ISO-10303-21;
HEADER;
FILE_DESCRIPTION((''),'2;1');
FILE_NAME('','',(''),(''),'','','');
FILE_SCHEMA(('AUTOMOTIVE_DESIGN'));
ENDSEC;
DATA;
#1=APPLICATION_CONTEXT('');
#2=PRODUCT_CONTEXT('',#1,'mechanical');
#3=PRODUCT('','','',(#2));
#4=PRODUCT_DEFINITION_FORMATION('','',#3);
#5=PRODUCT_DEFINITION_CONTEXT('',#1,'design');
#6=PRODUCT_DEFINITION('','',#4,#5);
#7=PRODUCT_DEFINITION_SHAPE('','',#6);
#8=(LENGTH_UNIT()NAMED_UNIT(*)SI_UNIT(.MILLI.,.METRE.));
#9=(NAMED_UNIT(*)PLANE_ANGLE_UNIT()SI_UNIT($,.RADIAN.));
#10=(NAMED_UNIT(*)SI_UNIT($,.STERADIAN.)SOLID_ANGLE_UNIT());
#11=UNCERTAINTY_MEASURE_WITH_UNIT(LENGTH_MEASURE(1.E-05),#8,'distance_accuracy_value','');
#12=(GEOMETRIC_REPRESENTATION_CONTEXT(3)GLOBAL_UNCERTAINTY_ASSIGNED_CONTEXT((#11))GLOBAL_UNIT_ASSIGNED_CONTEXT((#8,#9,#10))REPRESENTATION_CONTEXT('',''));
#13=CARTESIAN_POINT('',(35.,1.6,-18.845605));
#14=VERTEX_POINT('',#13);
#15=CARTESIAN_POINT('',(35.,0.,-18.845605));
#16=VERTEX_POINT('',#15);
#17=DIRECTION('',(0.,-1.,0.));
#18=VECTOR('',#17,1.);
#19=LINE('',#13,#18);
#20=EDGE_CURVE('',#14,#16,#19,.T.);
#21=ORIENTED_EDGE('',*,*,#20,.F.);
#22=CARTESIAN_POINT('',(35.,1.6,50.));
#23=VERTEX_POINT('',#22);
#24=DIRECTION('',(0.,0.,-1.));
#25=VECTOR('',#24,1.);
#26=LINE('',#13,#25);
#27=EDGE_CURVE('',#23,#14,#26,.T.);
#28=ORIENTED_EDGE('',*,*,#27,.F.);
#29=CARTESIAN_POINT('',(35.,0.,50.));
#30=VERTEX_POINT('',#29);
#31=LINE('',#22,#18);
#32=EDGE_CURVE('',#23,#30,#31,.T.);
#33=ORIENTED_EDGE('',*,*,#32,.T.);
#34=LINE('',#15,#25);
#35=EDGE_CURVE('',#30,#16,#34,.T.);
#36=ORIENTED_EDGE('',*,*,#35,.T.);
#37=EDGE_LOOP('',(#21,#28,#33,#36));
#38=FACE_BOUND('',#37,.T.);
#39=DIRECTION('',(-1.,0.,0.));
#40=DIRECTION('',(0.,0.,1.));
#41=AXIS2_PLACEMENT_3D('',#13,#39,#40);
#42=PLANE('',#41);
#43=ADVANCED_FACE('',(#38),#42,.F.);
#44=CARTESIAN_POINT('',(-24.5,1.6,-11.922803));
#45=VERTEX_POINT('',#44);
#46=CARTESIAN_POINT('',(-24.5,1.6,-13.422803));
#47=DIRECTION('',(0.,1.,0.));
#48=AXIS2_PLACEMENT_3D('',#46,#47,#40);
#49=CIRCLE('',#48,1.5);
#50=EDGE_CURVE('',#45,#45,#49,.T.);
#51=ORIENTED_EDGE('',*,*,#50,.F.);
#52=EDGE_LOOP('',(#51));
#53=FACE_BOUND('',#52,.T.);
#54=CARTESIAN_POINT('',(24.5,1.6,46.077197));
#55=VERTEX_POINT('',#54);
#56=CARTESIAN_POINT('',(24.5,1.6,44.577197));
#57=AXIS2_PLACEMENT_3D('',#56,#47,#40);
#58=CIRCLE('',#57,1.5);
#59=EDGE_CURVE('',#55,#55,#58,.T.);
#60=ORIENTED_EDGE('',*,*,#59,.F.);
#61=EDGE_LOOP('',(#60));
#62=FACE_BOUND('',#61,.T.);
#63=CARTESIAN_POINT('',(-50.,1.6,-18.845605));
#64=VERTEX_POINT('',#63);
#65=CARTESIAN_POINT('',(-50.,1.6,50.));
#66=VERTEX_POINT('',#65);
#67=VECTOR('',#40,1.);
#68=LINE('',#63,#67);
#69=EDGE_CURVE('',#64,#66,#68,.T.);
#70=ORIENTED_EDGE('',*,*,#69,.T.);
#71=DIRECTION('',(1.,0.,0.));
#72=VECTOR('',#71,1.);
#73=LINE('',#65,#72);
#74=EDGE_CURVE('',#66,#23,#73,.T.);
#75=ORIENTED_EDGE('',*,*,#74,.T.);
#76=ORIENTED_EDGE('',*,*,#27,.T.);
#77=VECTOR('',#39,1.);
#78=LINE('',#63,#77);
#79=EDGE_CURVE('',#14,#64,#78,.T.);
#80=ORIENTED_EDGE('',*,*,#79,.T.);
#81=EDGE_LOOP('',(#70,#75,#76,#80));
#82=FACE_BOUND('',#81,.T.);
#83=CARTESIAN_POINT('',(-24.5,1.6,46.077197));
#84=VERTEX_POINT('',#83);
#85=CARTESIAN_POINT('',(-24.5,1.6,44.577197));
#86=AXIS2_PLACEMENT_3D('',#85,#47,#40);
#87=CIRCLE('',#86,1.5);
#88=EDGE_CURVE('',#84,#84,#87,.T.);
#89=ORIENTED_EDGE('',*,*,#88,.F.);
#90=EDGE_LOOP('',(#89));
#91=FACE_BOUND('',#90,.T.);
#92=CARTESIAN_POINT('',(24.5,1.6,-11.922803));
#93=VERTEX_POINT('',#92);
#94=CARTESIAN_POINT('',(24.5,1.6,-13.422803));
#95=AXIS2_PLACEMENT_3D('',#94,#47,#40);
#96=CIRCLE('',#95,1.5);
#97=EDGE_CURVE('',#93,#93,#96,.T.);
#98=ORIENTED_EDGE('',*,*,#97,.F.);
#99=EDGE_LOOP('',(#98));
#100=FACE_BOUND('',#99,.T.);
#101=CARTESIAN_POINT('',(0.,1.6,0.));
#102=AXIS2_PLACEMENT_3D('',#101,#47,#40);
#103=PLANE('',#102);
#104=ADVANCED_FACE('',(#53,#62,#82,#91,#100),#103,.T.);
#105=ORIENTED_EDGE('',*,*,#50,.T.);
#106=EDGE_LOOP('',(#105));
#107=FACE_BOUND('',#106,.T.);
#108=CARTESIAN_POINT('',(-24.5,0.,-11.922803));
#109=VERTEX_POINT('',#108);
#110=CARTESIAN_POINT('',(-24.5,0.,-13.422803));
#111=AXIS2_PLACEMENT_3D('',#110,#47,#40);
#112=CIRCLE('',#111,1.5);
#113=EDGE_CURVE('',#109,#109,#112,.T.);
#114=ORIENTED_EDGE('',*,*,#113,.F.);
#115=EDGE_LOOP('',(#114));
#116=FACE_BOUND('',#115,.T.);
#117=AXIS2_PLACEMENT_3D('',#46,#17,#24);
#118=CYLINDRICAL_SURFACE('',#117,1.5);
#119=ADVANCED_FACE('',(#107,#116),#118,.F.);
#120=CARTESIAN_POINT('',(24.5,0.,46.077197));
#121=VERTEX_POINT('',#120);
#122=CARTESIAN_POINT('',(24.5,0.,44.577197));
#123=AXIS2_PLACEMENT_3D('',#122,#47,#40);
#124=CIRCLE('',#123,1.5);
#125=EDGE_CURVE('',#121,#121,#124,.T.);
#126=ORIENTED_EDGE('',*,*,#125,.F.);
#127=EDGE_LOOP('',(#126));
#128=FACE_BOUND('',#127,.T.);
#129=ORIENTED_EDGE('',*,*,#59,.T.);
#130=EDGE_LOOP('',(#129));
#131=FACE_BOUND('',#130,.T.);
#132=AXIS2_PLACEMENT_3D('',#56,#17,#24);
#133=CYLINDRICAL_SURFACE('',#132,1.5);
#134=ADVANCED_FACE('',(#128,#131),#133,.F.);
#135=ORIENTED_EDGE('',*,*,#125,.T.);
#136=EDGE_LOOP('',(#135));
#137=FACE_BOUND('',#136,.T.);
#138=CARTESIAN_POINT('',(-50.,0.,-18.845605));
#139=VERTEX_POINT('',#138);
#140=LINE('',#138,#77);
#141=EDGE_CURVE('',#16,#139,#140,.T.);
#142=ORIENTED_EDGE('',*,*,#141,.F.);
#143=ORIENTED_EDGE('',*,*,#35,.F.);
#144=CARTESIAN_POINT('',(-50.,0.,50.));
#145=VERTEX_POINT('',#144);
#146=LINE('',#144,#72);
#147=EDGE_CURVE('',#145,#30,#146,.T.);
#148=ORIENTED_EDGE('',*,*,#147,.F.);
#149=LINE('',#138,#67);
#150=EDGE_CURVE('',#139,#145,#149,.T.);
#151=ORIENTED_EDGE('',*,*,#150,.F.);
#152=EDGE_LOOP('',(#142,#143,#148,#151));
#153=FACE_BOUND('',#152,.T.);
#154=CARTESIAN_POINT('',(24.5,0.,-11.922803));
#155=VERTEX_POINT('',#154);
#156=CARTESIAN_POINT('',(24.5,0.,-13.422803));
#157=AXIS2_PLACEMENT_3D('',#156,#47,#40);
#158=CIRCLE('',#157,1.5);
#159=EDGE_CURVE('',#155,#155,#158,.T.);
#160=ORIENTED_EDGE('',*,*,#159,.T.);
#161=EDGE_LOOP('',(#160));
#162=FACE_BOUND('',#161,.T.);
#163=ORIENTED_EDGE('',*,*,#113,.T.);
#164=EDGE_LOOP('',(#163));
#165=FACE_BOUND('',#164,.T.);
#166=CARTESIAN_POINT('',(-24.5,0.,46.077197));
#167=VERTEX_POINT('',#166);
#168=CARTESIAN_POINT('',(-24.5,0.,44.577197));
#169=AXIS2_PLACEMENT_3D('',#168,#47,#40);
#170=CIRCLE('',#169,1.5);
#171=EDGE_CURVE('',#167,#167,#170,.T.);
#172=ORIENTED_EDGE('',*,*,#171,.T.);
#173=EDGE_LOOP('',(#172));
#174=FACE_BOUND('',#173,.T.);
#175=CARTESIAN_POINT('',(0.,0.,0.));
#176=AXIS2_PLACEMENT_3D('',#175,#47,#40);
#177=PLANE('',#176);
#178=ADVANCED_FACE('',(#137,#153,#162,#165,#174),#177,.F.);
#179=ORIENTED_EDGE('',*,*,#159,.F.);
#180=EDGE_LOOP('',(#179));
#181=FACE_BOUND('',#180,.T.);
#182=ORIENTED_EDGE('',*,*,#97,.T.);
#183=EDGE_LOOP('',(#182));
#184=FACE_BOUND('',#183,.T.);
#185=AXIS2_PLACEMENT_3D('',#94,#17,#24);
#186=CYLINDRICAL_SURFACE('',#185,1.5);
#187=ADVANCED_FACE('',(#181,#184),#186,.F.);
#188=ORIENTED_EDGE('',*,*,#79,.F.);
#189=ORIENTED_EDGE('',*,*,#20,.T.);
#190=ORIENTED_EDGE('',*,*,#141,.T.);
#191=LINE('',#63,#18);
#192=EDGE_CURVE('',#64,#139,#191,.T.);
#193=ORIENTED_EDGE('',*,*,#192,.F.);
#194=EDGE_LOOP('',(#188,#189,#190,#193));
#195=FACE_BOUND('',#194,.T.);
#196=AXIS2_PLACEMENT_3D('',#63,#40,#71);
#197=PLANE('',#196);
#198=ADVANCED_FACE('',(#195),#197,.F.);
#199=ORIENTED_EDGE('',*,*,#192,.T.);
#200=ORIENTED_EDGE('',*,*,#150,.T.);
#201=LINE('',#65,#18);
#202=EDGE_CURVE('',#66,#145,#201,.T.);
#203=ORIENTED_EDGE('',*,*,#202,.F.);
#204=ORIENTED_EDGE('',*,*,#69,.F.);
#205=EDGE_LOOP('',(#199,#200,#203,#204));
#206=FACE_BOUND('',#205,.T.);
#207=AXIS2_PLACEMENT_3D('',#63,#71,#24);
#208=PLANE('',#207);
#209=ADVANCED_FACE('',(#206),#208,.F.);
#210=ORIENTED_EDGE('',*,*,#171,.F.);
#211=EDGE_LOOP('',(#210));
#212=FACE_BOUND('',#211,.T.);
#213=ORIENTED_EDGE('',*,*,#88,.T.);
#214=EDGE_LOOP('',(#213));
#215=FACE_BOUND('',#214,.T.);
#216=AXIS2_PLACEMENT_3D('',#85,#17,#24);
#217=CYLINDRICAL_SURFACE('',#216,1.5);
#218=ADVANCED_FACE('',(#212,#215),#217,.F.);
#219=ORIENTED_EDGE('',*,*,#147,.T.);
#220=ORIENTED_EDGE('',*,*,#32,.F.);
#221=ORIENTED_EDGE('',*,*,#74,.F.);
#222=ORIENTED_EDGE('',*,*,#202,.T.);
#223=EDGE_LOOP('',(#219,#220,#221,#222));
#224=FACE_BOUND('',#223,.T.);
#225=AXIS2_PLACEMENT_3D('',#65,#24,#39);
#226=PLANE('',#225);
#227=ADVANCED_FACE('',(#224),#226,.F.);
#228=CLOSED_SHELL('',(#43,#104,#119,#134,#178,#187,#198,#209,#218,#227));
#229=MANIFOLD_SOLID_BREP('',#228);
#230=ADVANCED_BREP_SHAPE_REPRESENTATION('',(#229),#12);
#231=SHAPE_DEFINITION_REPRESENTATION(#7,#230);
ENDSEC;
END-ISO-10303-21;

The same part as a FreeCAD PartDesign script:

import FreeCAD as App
import Part
import Sketcher
from FreeCAD import Vector
Q = App.Units.Quantity

doc = App.newDocument("Part")
body = doc.addObject("PartDesign::Body", "Body")

# Sketch on XZ plane
sketch1 = body.newObject("Sketcher::SketchObject", "Sketch")
sketch1.AttachmentSupport = (doc.getObject("XZ_Plane"), [""])
sketch1.MapMode = "FlatFace"
sketch1.addGeometry([
    Part.LineSegment(Vector(-50, -18.8, 0), Vector(-50, 50, 0)),  # 0
    Part.LineSegment(Vector(-50, 50, 0), Vector(35, 50, 0)),  # 1
    Part.LineSegment(Vector(35, 50, 0), Vector(35, -18.8, 0)),  # 2
    Part.LineSegment(Vector(35, -18.8, 0), Vector(-50, -18.8, 0)),  # 3
    Part.Circle(Vector(-24.5, 44.6, 0), Vector(0, 0, 1), 1.5),  # 4
    Part.Circle(Vector(24.5, 44.6, 0), Vector(0, 0, 1), 1.5),  # 5
    Part.Circle(Vector(-24.5, -13.4, 0), Vector(0, 0, 1), 1.5),  # 6
    Part.Circle(Vector(24.5, -13.4, 0), Vector(0, 0, 1), 1.5),  # 7
], False)
sketch1.addConstraint([
    Sketcher.Constraint("Coincident", 0, 2, 1, 1),
    Sketcher.Constraint("Coincident", 1, 2, 2, 1),
    Sketcher.Constraint("Coincident", 2, 2, 3, 1),
    Sketcher.Constraint("Coincident", 3, 2, 0, 1),
    Sketcher.Constraint("Vertical", 0),
    Sketcher.Constraint("Horizontal", 1),
    Sketcher.Constraint("Vertical", 2),
    Sketcher.Constraint("Horizontal", 3),
    Sketcher.Constraint("Equal", 4, 5),
    Sketcher.Constraint("Equal", 5, 6),
    Sketcher.Constraint("Equal", 6, 7),
    Sketcher.Constraint("Symmetric", 4, 3, 5, 3, -2),
    Sketcher.Constraint("Symmetric", 6, 3, 7, 3, -2),
    Sketcher.Constraint("Vertical", 4, 3, 6, 3),
    Sketcher.Constraint("Diameter", 4, Q("3 mm")),
    Sketcher.Constraint("DistanceX", 1, 1, 1, 2, Q("85 mm")),
    Sketcher.Constraint("DistanceX", 0, 2, -1, 1, Q("50 mm")),
    Sketcher.Constraint("DistanceY", -1, 1, 0, 2, Q("50 mm")),
    Sketcher.Constraint("DistanceX", 4, 3, 5, 3, Q("49 mm")),
    Sketcher.Constraint("DistanceY", 6, 3, 4, 3, Q("58 mm")),
    Sketcher.Constraint("DistanceY", 0, 1, 0, 2, Q("68.845605 mm")),
    Sketcher.Constraint("DistanceY", -1, 1, 4, 3, Q("44.577197 mm")),
])
pad1 = body.newObject("PartDesign::Pad", "Pad")
pad1.Profile = sketch1
pad1.Length = 1.6
pad1.Reversed = True

doc.recompute()
